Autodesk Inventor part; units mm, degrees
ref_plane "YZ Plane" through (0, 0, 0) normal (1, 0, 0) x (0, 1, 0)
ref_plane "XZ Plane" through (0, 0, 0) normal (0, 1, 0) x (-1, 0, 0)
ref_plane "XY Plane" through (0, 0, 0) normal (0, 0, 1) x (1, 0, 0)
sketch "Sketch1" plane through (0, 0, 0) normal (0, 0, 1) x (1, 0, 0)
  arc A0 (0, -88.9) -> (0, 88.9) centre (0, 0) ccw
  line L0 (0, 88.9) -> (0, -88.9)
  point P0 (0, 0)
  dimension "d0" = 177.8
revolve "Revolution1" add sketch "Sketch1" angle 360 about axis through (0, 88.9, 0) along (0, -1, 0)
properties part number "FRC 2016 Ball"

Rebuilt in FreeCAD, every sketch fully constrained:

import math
import FreeCAD as App
import Part
import Sketcher
from FreeCAD import Vector
Q = App.Units.Quantity

doc = App.newDocument("Part")
body = doc.addObject("PartDesign::Body", "Body")

sketch1 = doc.addObject("Sketcher::SketchObject", "Sketch")
body.addObject(sketch1)
sketch1.AttachmentSupport = (doc.XY_Plane, [""])
sketch1.MapMode = "FlatFace"
sketch1.addGeometry([
    Part.LineSegment(Vector(0, 89, 0), Vector(0, -89, 0)),
    Part.ArcOfCircle(Part.Circle(Vector(0, 0, 0), Vector(0, 0, 1), 89), math.radians(-90), math.radians(90)),
], False)
sketch1.addConstraint([
    Sketcher.Constraint("Coincident", 0, 1, 1, 2),
    Sketcher.Constraint("Coincident", 1, 1, 0, 2),
    Sketcher.Constraint("Vertical", 0),
    Sketcher.Constraint("Coincident", 1, 3, -1, 1),
    Sketcher.Constraint("PointOnObject", 0, 1, -2),
    Sketcher.Constraint("Radius", 1, Q("3.5 in")),
])
revolution = doc.addObject("PartDesign::Revolution", "Revolution")
body.addObject(revolution)
revolution.Profile = sketch1
revolution.ReferenceAxis = (sketch1, ["V_Axis"])
revolution.Angle = 360

doc.recompute()
